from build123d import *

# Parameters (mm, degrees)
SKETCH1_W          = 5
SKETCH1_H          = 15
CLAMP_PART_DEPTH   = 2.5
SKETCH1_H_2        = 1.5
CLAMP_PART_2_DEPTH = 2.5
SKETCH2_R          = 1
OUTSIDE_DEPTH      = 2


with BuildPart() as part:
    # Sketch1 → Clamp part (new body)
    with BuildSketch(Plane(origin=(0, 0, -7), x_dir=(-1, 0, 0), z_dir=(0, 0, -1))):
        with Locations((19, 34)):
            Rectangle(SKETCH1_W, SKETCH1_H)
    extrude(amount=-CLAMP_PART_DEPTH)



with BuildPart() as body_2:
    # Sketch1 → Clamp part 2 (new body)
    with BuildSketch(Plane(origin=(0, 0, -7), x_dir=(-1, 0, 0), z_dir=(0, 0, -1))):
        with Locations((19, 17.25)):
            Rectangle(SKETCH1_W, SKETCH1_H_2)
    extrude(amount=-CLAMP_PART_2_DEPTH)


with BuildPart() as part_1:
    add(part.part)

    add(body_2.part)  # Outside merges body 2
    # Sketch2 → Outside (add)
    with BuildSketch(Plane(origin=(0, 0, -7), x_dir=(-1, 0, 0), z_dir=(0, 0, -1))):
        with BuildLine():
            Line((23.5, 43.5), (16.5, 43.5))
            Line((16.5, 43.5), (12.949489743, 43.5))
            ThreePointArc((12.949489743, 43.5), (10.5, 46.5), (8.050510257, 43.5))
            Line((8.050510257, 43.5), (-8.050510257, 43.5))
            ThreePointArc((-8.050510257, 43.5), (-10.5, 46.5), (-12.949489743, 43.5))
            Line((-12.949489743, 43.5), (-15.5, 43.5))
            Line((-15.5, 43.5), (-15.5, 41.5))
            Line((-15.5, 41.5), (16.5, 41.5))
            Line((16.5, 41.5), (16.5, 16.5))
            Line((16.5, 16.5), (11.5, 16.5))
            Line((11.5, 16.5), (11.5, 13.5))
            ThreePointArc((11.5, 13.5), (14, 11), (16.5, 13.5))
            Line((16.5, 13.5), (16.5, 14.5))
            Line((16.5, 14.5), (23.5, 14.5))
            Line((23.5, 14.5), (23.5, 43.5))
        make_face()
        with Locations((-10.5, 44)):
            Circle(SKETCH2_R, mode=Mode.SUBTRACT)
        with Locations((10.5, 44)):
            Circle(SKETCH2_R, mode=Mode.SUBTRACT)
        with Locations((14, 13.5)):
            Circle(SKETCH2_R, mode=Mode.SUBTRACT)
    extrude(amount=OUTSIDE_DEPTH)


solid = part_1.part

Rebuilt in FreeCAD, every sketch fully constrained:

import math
import FreeCAD as App
import Part
import Sketcher

V = App.Vector


def add_polygon(sketch, points):
    """Adds a closed chain of lines whose ends are joined by coincident constraints."""
    first, n = sketch.GeometryCount, len(points)
    for a, b in zip(points, points[1:] + points[:1]):
        sketch.addGeometry(Part.LineSegment(App.Vector(*a, 0), App.Vector(*b, 0)), False)
    for i in range(n):
        sketch.addConstraint(Sketcher.Constraint("Coincident", first + i, 2, first + (i + 1) % n, 1))

doc = App.newDocument("Part")
params = doc.addObject("Spreadsheet::Sheet", "Params")
for row, (alias, value) in enumerate([
    ("sketch1_width", "5 mm"),
    ("sketch1_height", "15 mm"),
    ("pad1_length", "2.5 mm"),
    ("sketch2_width", "5 mm"),
    ("sketch2_height", "1.5 mm"),
    ("pad2_length", "2.5 mm"),
    ("sketch3_diameter", "2 mm"),
    ("sketch3_radius", "2.5 mm"),
    ("sketch3_width", "32 mm"),
    ("sketch3_width2", "7 mm"),
    ("sketch3_height", "2 mm"),
    ("pad3_length", "2 mm"),
], start=1):
    params.set(f"A{row}", alias)
    params.set(f"B{row}", "=" + value)
    params.setAlias(f"B{row}", alias)

body = doc.addObject("PartDesign::Body", "Body")

# Sketch on XY plane
sketch1 = body.newObject("Sketcher::SketchObject", "Sketch")
sketch1.AttachmentSupport = (doc.getObject("XY_Plane"), [""])
sketch1.MapMode = "FlatFace"
sketch1.AttachmentOffset = App.Placement(V(0, 0, -7), App.Rotation())
add_polygon(sketch1, [(-16, 42), (-16, 26), (-22, 26), (-22, 42)])  # lines 0-3
sketch1.addConstraint(Sketcher.Constraint("Vertical", 0))
sketch1.addConstraint(Sketcher.Constraint("Horizontal", 1))
sketch1.addConstraint(Sketcher.Constraint("Vertical", 2))
sketch1.addConstraint(Sketcher.Constraint("Horizontal", 3))
sketch1.addConstraint(Sketcher.Constraint("DistanceX", 1, 2, 1, 1, 5.0))
sketch1.addConstraint(Sketcher.Constraint("DistanceY", 0, 2, 0, 1, 15.0))
sketch1.addConstraint(Sketcher.Constraint("DistanceX", 0, 2, -1, 1, 16.5))
sketch1.addConstraint(Sketcher.Constraint("DistanceY", -1, 1, 0, 2, 26.5))
sketch1.setExpression("Constraints[8]", "Params.sketch1_width")
sketch1.setExpression("Constraints[9]", "Params.sketch1_height")
pad1 = body.newObject("PartDesign::Pad", "Pad")
pad1.Profile = sketch1
pad1.setExpression("Length", "Params.pad1_length")
body2 = doc.addObject("PartDesign::Body", "Body001")

# Sketch on XY plane
sketch2 = body2.newObject("Sketcher::SketchObject", "Sketch001")
sketch2.AttachmentSupport = (doc.getObject("XY_Plane001"), [""])
sketch2.MapMode = "FlatFace"
sketch2.AttachmentOffset = App.Placement(V(0, 0, -7), App.Rotation())
add_polygon(sketch2, [(-16.5, 18), (-16.5, 16.5), (-21.5, 16.5), (-21.5, 18)])  # lines 0-3
sketch2.addConstraint(Sketcher.Constraint("Vertical", 0))
sketch2.addConstraint(Sketcher.Constraint("Horizontal", 1))
sketch2.addConstraint(Sketcher.Constraint("Vertical", 2))
sketch2.addConstraint(Sketcher.Constraint("Horizontal", 3))
sketch2.addConstraint(Sketcher.Constraint("DistanceX", 1, 2, 1, 1, 5.0))
sketch2.addConstraint(Sketcher.Constraint("DistanceY", 0, 2, 0, 1, 1.5))
sketch2.addConstraint(Sketcher.Constraint("DistanceY", -1, 1, 2, 2, 18.0))
sketch2.addConstraint(Sketcher.Constraint("DistanceX", 0, 2, -1, 1, 16.5))
sketch2.setExpression("Constraints[8]", "Params.sketch2_width")
sketch2.setExpression("Constraints[9]", "Params.sketch2_height")
pad2 = body2.newObject("PartDesign::Pad", "Pad001")
pad2.Profile = sketch2
pad2.setExpression("Length", "Params.pad2_length")
body.AllowCompound = True
doc.recompute()

boolean = body.newObject("PartDesign::Boolean", "Boolean")
boolean.Type = "Fuse"
boolean.addObjects([body2])

# Sketch on XY plane
sketch3 = body.newObject("Sketcher::SketchObject", "Sketch002")
sketch3.AttachmentSupport = (doc.getObject("XY_Plane"), [""])
sketch3.MapMode = "FlatFace"
sketch3.AttachmentOffset = App.Placement(V(0, 0, -7), App.Rotation())
sketch3.addGeometry(Part.LineSegment(V(-23.5, 43.5, 0), V(-12.9, 43.5, 0)), False)
sketch3.addGeometry(Part.ArcOfCircle(Part.Circle(V(-10.5, 44, 0), V(0, 0, 1), 2.5), math.radians(-12), math.radians(192)), False)
sketch3.addGeometry(Part.LineSegment(V(-8.1, 43.5, 0), V(8.1, 43.5, 0)), False)
sketch3.addGeometry(Part.ArcOfCircle(Part.Circle(V(10.5, 44, 0), V(0, 0, 1), 2.5), math.radians(-12), math.radians(192)), False)
sketch3.addGeometry(Part.LineSegment(V(12.9, 43.5, 0), V(15.5, 43.5, 0)), False)
sketch3.addGeometry(Part.LineSegment(V(15.5, 43.5, 0), V(15.5, 41.5, 0)), False)
sketch3.addGeometry(Part.LineSegment(V(15.5, 41.5, 0), V(-16.5, 41.5, 0)), False)
sketch3.addGeometry(Part.LineSegment(V(-16.5, 41.5, 0), V(-16.5, 16.5, 0)), False)
sketch3.addGeometry(Part.LineSegment(V(-16.5, 16.5, 0), V(-11.5, 16.5, 0)), False)
sketch3.addGeometry(Part.LineSegment(V(-11.5, 16.5, 0), V(-11.5, 13.5, 0)), False)
sketch3.addGeometry(Part.ArcOfCircle(Part.Circle(V(-14, 13.5, 0), V(0, 0, 1), 2.5), math.radians(180), math.radians(360)), False)
sketch3.addGeometry(Part.LineSegment(V(-16.5, 13.5, 0), V(-16.5, 14.5, 0)), False)
sketch3.addGeometry(Part.LineSegment(V(-16.5, 14.5, 0), V(-23.5, 14.5, 0)), False)
sketch3.addGeometry(Part.LineSegment(V(-23.5, 14.5, 0), V(-23.5, 43.5, 0)), False)
sketch3.addGeometry(Part.Circle(V(-14, 13.5, 0), V(0, 0, 1), 1), False)
sketch3.addGeometry(Part.Circle(V(10.5, 44, 0), V(0, 0, 1), 1), False)
sketch3.addGeometry(Part.Circle(V(-10.5, 44, 0), V(0, 0, 1), 1), False)
sketch3.addConstraint(Sketcher.Constraint("Coincident", 0, 2, 1, 2))
sketch3.addConstraint(Sketcher.Constraint("Coincident", 1, 1, 2, 1))
sketch3.addConstraint(Sketcher.Constraint("Coincident", 2, 2, 3, 2))
sketch3.addConstraint(Sketcher.Constraint("Coincident", 3, 1, 4, 1))
sketch3.addConstraint(Sketcher.Constraint("Coincident", 4, 2, 5, 1))
sketch3.addConstraint(Sketcher.Constraint("Coincident", 5, 2, 6, 1))
sketch3.addConstraint(Sketcher.Constraint("Coincident", 6, 2, 7, 1))
sketch3.addConstraint(Sketcher.Constraint("Coincident", 7, 2, 8, 1))
sketch3.addConstraint(Sketcher.Constraint("Coincident", 8, 2, 9, 1))
sketch3.addConstraint(Sketcher.Constraint("Tangent", 9, 2, 10, 2))
sketch3.addConstraint(Sketcher.Constraint("Tangent", 10, 1, 11, 1))
sketch3.addConstraint(Sketcher.Constraint("Coincident", 11, 2, 12, 1))
sketch3.addConstraint(Sketcher.Constraint("Coincident", 12, 2, 13, 1))
sketch3.addConstraint(Sketcher.Constraint("Coincident", 13, 2, 0, 1))
sketch3.addConstraint(Sketcher.Constraint("Horizontal", 0))
sketch3.addConstraint(Sketcher.Constraint("Horizontal", 2))
sketch3.addConstraint(Sketcher.Constraint("Horizontal", 4))
sketch3.addConstraint(Sketcher.Constraint("Vertical", 5))
sketch3.addConstraint(Sketcher.Constraint("Horizontal", 6))
sketch3.addConstraint(Sketcher.Constraint("Vertical", 7))
sketch3.addConstraint(Sketcher.Constraint("Horizontal", 8))
sketch3.addConstraint(Sketcher.Constraint("Vertical", 9))
sketch3.addConstraint(Sketcher.Constraint("Vertical", 11))
sketch3.addConstraint(Sketcher.Constraint("Horizontal", 12))
sketch3.addConstraint(Sketcher.Constraint("Vertical", 13))
sketch3.addConstraint(Sketcher.Constraint("Coincident", 14, 3, 10, 3))
sketch3.addConstraint(Sketcher.Constraint("Coincident", 15, 3, 3, 3))
sketch3.addConstraint(Sketcher.Constraint("Coincident", 16, 3, 1, 3))
sketch3.addConstraint(Sketcher.Constraint("Equal", 1, 3))
sketch3.addConstraint(Sketcher.Constraint("Equal", 3, 10))
sketch3.addConstraint(Sketcher.Constraint("Equal", 14, 15))
sketch3.addConstraint(Sketcher.Constraint("Equal", 15, 16))
sketch3.addConstraint(Sketcher.Constraint("Symmetric", 1, 3, 3, 3, -2))
sketch3.addConstraint(Sketcher.Constraint("Horizontal", 0, 2, 1, 1))
sketch3.addConstraint(Sketcher.Constraint("Horizontal", 2, 2, 3, 1))
sketch3.addConstraint(Sketcher.Constraint("Vertical", 7, 2, 10, 1))
sketch3.addConstraint(Sketcher.Constraint("Diameter", 14, 2.0))
sketch3.addConstraint(Sketcher.Constraint("Radius", 1, 2.5))
sketch3.addConstraint(Sketcher.Constraint("DistanceX", 6, 2, 6, 1, 32.0))
sketch3.addConstraint(Sketcher.Constraint("DistanceX", 12, 2, 12, 1, 7.0))
sketch3.addConstraint(Sketcher.Constraint("DistanceY", 5, 2, 5, 1, 2.0))
sketch3.addConstraint(Sketcher.Constraint("DistanceY", 7, 2, 7, 1, 25.0))
sketch3.addConstraint(Sketcher.Constraint("DistanceY", 9, 2, 9, 1, 3.0))
sketch3.addConstraint(Sketcher.Constraint("DistanceY", 11, 1, 11, 2, 1.0))
sketch3.addConstraint(Sketcher.Constraint("DistanceY", -1, 1, 1, 3, 44.0))
sketch3.addConstraint(Sketcher.Constraint("DistanceX", 10, 3, -1, 1, 14.0))
sketch3.addConstraint(Sketcher.Constraint("DistanceX", 1, 3, 3, 3, 21.0))
sketch3.addConstraint(Sketcher.Constraint("DistanceY", -1, 1, 10, 3, 13.5))
sketch3.setExpression("Constraints[36]", "Params.sketch3_diameter")
sketch3.setExpression("Constraints[37]", "Params.sketch3_radius")
sketch3.setExpression("Constraints[38]", "Params.sketch3_width")
sketch3.setExpression("Constraints[39]", "Params.sketch3_width2")
sketch3.setExpression("Constraints[40]", "Params.sketch3_height")
pad3 = body.newObject("PartDesign::Pad", "Pad002")
pad3.Profile = sketch3
pad3.setExpression("Length", "Params.pad3_length")
pad3.Reversed = True

doc.recompute()
